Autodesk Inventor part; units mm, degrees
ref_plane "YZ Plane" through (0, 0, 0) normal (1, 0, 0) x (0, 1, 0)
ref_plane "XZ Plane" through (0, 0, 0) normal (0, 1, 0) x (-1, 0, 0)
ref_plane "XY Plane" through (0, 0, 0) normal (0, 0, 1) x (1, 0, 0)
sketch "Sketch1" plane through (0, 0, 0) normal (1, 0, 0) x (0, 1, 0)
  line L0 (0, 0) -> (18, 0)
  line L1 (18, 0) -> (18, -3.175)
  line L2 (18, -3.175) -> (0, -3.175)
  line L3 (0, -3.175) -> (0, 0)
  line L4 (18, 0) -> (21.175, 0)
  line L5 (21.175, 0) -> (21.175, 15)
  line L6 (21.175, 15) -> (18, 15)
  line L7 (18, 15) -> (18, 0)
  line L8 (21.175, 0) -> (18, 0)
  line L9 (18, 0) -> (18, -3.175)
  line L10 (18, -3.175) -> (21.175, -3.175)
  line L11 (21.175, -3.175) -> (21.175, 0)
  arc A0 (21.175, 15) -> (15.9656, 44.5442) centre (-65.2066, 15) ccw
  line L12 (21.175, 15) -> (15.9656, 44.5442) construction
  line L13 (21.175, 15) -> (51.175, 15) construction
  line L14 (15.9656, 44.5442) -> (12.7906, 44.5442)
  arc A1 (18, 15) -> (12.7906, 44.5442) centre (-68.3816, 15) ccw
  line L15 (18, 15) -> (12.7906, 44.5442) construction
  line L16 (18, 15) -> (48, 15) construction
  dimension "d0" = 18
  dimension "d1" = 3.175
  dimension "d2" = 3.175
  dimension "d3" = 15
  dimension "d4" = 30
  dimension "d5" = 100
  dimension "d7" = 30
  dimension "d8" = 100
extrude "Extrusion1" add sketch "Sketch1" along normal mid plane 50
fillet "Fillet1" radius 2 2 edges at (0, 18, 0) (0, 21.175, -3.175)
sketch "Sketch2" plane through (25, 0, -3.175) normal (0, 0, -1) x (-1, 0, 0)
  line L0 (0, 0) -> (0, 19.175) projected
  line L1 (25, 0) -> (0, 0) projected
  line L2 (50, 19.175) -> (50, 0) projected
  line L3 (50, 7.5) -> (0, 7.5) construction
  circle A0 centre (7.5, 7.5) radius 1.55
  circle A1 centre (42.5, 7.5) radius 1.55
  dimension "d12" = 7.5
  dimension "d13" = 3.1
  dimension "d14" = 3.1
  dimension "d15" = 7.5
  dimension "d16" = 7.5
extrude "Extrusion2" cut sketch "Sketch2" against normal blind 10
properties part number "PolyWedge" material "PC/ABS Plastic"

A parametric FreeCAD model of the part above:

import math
import FreeCAD as App
import Part
import Sketcher
Q = App.Units.Quantity


def edges_at(feature, points):
    """Names of the edges that pass closest to the given points."""
    edges = feature.Shape.Edges
    near = lambda p: min(range(len(edges)), key=lambda i: edges[i].distToShape(Part.Vertex(*p))[0])
    return sorted({f"Edge{near(p) + 1}" for p in points})

doc = App.newDocument("Part")
params = doc.addObject("Spreadsheet::Sheet", "Params")
for row, (alias, value) in enumerate([
    ("sketch1_width", "18 mm"),
    ("sketch1_height", "15 mm"),
    ("pad1_length", "50 mm"),
    ("fillet_radius", "2 mm"),
    ("sketch2_diameter", "3.1 mm"),
    ("pocket1_length", "10 mm"),
], start=1):
    params.set(f"A{row}", alias)
    params.set(f"B{row}", "=" + value)
    params.setAlias(f"B{row}", alias)

body = doc.addObject("PartDesign::Body", "Body")

sketch1 = body.newObject("Sketcher::SketchObject", "Sketch")
sketch1.AttachmentSupport = (doc.getObject("YZ_Plane"), [""])
sketch1.MapMode = "FlatFace"
sketch1.addGeometry(Part.LineSegment(App.Vector(18, 0, 0), App.Vector(0, 0, 0)), False)
sketch1.addGeometry(Part.LineSegment(App.Vector(0, 0, 0), App.Vector(0, -3.2, 0)), False)
sketch1.addGeometry(Part.LineSegment(App.Vector(0, -3.2, 0), App.Vector(21.2, -3.2, 0)), False)
sketch1.addGeometry(Part.LineSegment(App.Vector(21.2, -3.2, 0), App.Vector(21.2, 15, 0)), False)
sketch1.addGeometry(Part.ArcOfCircle(Part.Circle(App.Vector(-65.2, 15, 0), App.Vector(0, 0, 1), 86.4), math.radians(0), math.radians(20)), False)
sketch1.addGeometry(Part.LineSegment(App.Vector(16, 44.5, 0), App.Vector(12.8, 44.5, 0)), False)
sketch1.addGeometry(Part.ArcOfCircle(Part.Circle(App.Vector(-68.4, 15, 0), App.Vector(0, 0, 1), 86.4), math.radians(0), math.radians(20)), False)
sketch1.addGeometry(Part.LineSegment(App.Vector(18, 15, 0), App.Vector(18, 0, 0)), False)
sketch1.addConstraint(Sketcher.Constraint("Coincident", 0, 2, 1, 1))
sketch1.addConstraint(Sketcher.Constraint("Coincident", 1, 2, 2, 1))
sketch1.addConstraint(Sketcher.Constraint("Coincident", 2, 2, 3, 1))
sketch1.addConstraint(Sketcher.Constraint("Tangent", 3, 2, 4, 1))
sketch1.addConstraint(Sketcher.Constraint("Coincident", 4, 2, 5, 1))
sketch1.addConstraint(Sketcher.Constraint("Coincident", 5, 2, 6, 2))
sketch1.addConstraint(Sketcher.Constraint("Tangent", 6, 1, 7, 1))
sketch1.addConstraint(Sketcher.Constraint("Coincident", 7, 2, 0, 1))
sketch1.addConstraint(Sketcher.Constraint("Horizontal", 0))
sketch1.addConstraint(Sketcher.Constraint("Vertical", 1))
sketch1.addConstraint(Sketcher.Constraint("Horizontal", 2))
sketch1.addConstraint(Sketcher.Constraint("Vertical", 3))
sketch1.addConstraint(Sketcher.Constraint("Horizontal", 5))
sketch1.addConstraint(Sketcher.Constraint("Vertical", 7))
sketch1.addConstraint(Sketcher.Constraint("Coincident", 0, 2, -1, 1))
sketch1.addConstraint(Sketcher.Constraint("Equal", 4, 6))
sketch1.addConstraint(Sketcher.Constraint("Horizontal", 4, 3, 6, 3))
sketch1.addConstraint(Sketcher.Constraint("Equal", 5, 1))
sketch1.addConstraint(Sketcher.Constraint("DistanceX", 0, 2, 0, 1, Q("18 mm")))
sketch1.addConstraint(Sketcher.Constraint("DistanceY", 7, 2, 7, 1, Q("15 mm")))
sketch1.addConstraint(Sketcher.Constraint("DistanceX", 5, 2, 5, 1, Q("3.175 mm")))
sketch1.addConstraint(Sketcher.Constraint("Radius", 4, Q("86.3816 mm")))
sketch1.addConstraint(Sketcher.Constraint("DistanceX", -1, 1, 4, 2, Q("15.9656 mm")))
sketch1.setExpression("Constraints[18]", "Params.sketch1_width")
sketch1.setExpression("Constraints[19]", "Params.sketch1_height")
pad1 = body.newObject("PartDesign::Pad", "Pad")
pad1.Profile = sketch1
pad1.setExpression("Length", "Params.pad1_length")
pad1.Midplane = True
doc.recompute()

fillet = body.newObject("PartDesign::Fillet", "Fillet")
fillet.Base = (pad1, edges_at(pad1, [(0, 18, 0), (0, 21.175, -3.175)]))
fillet.setExpression("Radius", "Params.fillet_radius")

sketch2 = body.newObject("Sketcher::SketchObject", "Sketch001")
sketch2.AttachmentSupport = (doc.getObject("XY_Plane"), [""])
sketch2.MapMode = "FlatFace"
sketch2.AttachmentOffset = App.Placement(App.Vector(0, 0, -3.175), App.Rotation())
sketch2.addGeometry(Part.Circle(App.Vector(17.5, 7.5, 0), App.Vector(0, 0, 1), 1.6), False)
sketch2.addGeometry(Part.Circle(App.Vector(-17.5, 7.5, 0), App.Vector(0, 0, 1), 1.6), False)
sketch2.addConstraint(Sketcher.Constraint("Equal", 0, 1))
sketch2.addConstraint(Sketcher.Constraint("Symmetric", 0, 3, 1, 3, -2))
sketch2.addConstraint(Sketcher.Constraint("Diameter", 0, Q("3.1 mm")))
sketch2.addConstraint(Sketcher.Constraint("DistanceY", -1, 1, 0, 3, Q("7.5 mm")))
sketch2.addConstraint(Sketcher.Constraint("DistanceX", 1, 3, 0, 3, Q("35 mm")))
sketch2.setExpression("Constraints[2]", "Params.sketch2_diameter")
pocket1 = body.newObject("PartDesign::Pocket", "Pocket")
pocket1.Profile = sketch2
pocket1.setExpression("Length", "Params.pocket1_length")
pocket1.Reversed = True

doc.recompute()
